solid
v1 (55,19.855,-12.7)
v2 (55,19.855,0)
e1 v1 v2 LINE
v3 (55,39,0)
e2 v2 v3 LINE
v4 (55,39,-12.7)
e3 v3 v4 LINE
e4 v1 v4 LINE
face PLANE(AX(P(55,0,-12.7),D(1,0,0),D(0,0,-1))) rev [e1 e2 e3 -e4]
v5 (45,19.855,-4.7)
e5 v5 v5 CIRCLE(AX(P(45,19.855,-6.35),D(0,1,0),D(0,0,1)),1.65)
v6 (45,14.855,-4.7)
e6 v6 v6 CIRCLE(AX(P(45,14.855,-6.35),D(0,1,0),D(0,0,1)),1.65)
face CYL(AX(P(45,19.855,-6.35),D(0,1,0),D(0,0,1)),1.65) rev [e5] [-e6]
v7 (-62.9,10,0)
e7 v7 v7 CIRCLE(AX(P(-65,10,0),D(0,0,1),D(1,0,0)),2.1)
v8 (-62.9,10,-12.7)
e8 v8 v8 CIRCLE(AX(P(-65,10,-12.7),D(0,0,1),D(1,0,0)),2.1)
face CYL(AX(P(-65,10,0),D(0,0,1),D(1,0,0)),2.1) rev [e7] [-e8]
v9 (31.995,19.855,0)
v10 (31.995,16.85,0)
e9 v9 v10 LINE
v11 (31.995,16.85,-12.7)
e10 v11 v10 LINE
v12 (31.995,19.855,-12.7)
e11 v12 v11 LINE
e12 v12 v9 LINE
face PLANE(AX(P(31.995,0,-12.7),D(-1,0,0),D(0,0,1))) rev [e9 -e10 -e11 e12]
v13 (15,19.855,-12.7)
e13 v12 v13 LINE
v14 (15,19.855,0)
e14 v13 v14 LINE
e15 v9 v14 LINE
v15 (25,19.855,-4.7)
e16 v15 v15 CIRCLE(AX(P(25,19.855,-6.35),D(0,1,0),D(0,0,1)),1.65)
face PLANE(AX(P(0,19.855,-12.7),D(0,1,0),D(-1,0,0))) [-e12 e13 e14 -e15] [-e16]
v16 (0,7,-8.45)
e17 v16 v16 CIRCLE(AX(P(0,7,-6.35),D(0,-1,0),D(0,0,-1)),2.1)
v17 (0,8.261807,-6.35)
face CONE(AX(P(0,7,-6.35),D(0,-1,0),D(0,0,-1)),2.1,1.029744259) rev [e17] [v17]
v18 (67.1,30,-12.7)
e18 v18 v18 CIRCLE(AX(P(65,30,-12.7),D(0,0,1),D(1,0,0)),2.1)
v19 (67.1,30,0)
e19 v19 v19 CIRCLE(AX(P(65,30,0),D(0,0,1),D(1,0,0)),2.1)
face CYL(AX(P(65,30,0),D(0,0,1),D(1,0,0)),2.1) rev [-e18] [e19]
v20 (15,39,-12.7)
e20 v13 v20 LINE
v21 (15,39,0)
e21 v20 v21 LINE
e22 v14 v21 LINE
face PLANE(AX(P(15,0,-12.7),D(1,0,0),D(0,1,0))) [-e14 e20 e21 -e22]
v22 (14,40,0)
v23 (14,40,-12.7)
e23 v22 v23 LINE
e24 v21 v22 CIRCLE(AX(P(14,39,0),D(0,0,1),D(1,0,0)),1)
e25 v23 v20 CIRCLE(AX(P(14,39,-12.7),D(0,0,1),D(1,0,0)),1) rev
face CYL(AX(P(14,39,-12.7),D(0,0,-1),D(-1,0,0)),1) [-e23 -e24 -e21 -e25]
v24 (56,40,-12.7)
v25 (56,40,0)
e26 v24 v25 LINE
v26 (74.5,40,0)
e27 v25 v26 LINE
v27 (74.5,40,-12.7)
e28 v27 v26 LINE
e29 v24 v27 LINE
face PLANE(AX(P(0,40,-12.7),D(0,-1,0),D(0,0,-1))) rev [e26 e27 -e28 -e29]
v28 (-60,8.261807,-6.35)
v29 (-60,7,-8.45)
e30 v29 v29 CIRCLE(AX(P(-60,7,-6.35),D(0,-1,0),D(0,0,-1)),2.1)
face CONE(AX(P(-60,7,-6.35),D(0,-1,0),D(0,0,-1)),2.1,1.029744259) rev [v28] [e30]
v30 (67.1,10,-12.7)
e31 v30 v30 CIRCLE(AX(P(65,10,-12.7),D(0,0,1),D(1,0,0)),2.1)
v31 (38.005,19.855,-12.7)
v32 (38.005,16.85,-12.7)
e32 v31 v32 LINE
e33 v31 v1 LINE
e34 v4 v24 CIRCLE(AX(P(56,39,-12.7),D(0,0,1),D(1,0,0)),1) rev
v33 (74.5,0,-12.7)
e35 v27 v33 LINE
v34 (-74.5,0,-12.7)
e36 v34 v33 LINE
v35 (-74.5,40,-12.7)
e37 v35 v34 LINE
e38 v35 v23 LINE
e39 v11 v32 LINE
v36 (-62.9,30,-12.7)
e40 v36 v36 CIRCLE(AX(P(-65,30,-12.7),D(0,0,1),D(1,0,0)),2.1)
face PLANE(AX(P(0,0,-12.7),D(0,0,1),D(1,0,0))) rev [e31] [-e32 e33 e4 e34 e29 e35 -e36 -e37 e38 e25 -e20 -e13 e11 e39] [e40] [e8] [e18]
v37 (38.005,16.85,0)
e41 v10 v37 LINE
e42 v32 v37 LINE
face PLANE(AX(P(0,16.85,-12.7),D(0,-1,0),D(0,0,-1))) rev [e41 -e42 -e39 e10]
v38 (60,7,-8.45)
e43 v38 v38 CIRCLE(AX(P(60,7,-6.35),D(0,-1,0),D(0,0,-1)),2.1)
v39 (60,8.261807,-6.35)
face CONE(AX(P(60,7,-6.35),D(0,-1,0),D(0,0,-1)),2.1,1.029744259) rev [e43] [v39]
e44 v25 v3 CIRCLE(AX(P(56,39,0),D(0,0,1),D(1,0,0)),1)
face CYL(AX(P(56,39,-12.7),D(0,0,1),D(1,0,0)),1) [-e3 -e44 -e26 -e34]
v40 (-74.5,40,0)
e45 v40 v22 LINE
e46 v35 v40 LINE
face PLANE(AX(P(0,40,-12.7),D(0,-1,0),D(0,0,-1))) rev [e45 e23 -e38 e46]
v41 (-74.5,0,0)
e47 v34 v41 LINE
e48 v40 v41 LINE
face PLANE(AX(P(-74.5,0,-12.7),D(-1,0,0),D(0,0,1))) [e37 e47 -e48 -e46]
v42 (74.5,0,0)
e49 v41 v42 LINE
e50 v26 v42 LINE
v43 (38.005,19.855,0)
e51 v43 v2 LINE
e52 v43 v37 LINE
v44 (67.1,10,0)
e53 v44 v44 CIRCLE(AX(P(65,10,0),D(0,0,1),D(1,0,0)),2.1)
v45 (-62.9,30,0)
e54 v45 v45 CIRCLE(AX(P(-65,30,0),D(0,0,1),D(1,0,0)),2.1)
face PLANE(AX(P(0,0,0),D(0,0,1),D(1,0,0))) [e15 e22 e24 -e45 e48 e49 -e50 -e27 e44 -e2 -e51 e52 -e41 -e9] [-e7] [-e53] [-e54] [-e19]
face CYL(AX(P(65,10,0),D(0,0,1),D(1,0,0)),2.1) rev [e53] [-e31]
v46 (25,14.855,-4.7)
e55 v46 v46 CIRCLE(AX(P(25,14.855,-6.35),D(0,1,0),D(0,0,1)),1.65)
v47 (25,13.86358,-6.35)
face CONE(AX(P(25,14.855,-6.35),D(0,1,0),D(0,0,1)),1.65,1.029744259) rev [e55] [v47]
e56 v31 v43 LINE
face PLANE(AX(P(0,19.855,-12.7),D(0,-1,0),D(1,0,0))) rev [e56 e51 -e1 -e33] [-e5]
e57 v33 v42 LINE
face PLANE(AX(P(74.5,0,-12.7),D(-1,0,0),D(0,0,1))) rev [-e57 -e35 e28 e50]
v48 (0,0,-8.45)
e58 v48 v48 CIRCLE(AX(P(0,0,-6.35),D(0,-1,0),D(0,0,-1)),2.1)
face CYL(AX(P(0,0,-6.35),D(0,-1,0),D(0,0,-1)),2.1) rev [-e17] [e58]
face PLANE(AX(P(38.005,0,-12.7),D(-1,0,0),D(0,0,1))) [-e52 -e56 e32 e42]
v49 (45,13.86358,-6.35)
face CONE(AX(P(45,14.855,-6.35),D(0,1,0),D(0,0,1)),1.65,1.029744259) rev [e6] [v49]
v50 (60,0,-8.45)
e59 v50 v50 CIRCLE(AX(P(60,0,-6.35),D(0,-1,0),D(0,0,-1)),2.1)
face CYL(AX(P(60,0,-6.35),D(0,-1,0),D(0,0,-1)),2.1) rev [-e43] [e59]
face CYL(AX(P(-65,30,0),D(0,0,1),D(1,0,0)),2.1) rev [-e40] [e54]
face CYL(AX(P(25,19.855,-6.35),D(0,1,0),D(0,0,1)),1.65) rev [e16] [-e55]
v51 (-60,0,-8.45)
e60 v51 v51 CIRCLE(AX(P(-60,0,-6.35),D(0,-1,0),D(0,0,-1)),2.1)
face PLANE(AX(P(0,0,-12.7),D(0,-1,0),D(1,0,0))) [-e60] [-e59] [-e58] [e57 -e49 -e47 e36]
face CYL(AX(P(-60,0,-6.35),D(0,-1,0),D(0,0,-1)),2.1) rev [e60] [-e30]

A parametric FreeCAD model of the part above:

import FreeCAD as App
import Part
import Sketcher

V = App.Vector
Q = App.Units.Quantity


def edges_at(feature, points):
    """Names of the edges that pass closest to the given points."""
    edges = feature.Shape.Edges
    near = lambda p: min(range(len(edges)), key=lambda i: edges[i].distToShape(Part.Vertex(*p))[0])
    return sorted({f"Edge{near(p) + 1}" for p in points})


def add_polygon(sketch, points):
    """Adds a closed chain of lines whose ends are joined by coincident constraints."""
    first, n = sketch.GeometryCount, len(points)
    for a, b in zip(points, points[1:] + points[:1]):
        sketch.addGeometry(Part.LineSegment(App.Vector(*a, 0), App.Vector(*b, 0)), False)
    for i in range(n):
        sketch.addConstraint(Sketcher.Constraint("Coincident", first + i, 2, first + (i + 1) % n, 1))

doc = App.newDocument("Part")
body = doc.addObject("PartDesign::Body", "Body")

# Sketch on XY plane
sketch1 = body.newObject("Sketcher::SketchObject", "Sketch")
sketch1.AttachmentSupport = (doc.getObject("XY_Plane"), [""])
sketch1.MapMode = "FlatFace"
add_polygon(sketch1, [(15, 40), (-74.5, 40), (-74.5, 0), (74.5, 0), (74.5, 40), (55, 40), (55, 19.9), (38, 19.9), (38, 16.9), (32, 16.9), (32, 19.9), (15, 19.9)])  # lines 0-11
sketch1.addConstraint(Sketcher.Constraint("Horizontal", 0))
sketch1.addConstraint(Sketcher.Constraint("Vertical", 1))
sketch1.addConstraint(Sketcher.Constraint("Horizontal", 2))
sketch1.addConstraint(Sketcher.Constraint("Vertical", 3))
sketch1.addConstraint(Sketcher.Constraint("Horizontal", 4))
sketch1.addConstraint(Sketcher.Constraint("Vertical", 5))
sketch1.addConstraint(Sketcher.Constraint("Horizontal", 6))
sketch1.addConstraint(Sketcher.Constraint("Vertical", 7))
sketch1.addConstraint(Sketcher.Constraint("Horizontal", 8))
sketch1.addConstraint(Sketcher.Constraint("Vertical", 9))
sketch1.addConstraint(Sketcher.Constraint("Horizontal", 10))
sketch1.addConstraint(Sketcher.Constraint("Vertical", 11))
sketch1.addConstraint(Sketcher.Constraint("Symmetric", 1, 2, 2, 2, -1, 1))
sketch1.addConstraint(Sketcher.Constraint("Horizontal", 0, 2, 3, 2))
sketch1.addConstraint(Sketcher.Constraint("Horizontal", 6, 2, 9, 2))
sketch1.addConstraint(Sketcher.Constraint("Equal", 6, 10))
sketch1.addConstraint(Sketcher.Constraint("DistanceX", 2, 1, 2, 2, Q("149 mm")))
sketch1.addConstraint(Sketcher.Constraint("DistanceY", 1, 2, 1, 1, Q("40 mm")))
sketch1.addConstraint(Sketcher.Constraint("DistanceX", 0, 2, 0, 1, Q("89.5 mm")))
sketch1.addConstraint(Sketcher.Constraint("DistanceX", 4, 2, 4, 1, Q("19.5 mm")))
sketch1.addConstraint(Sketcher.Constraint("DistanceX", 8, 2, 8, 1, Q("6.01 mm")))
sketch1.addConstraint(Sketcher.Constraint("DistanceY", 5, 2, 5, 1, Q("20.145 mm")))
sketch1.addConstraint(Sketcher.Constraint("DistanceY", 7, 2, 7, 1, Q("3.005 mm")))
pad1 = body.newObject("PartDesign::Pad", "Pad")
pad1.Profile = sketch1
pad1.Length = 12.7
pad1.Reversed = True

# Sketch on XZ plane
sketch2 = body.newObject("Sketcher::SketchObject", "Sketch001")
sketch2.AttachmentSupport = (doc.getObject("XZ_Plane"), [""])
sketch2.MapMode = "FlatFace"
sketch2.AttachmentOffset = App.Placement(V(0, 0, -19.855), App.Rotation())
sketch2.addGeometry(Part.Circle(V(25, -6.3, 0), V(0, 0, 1), 1.6), False)
sketch2.addGeometry(Part.Circle(V(45, -6.3, 0), V(0, 0, 1), 1.6), False)
sketch2.addConstraint(Sketcher.Constraint("Equal", 0, 1))
sketch2.addConstraint(Sketcher.Constraint("Horizontal", 0, 3, 1, 3))
sketch2.addConstraint(Sketcher.Constraint("Diameter", 0, Q("3.3 mm")))
sketch2.addConstraint(Sketcher.Constraint("DistanceX", -1, 1, 0, 3, Q("25 mm")))
sketch2.addConstraint(Sketcher.Constraint("DistanceX", -1, 1, 1, 3, Q("45 mm")))
sketch2.addConstraint(Sketcher.Constraint("DistanceY", 0, 3, -1, 1, Q("6.35 mm")))
doc.recompute()
hole = body.newObject("PartDesign::Hole", "Hole")
hole.Profile = sketch2
hole.ThreadType = "None"
hole.Diameter = 3.3
hole.DepthType = "Dimension"
hole.Depth = 5
hole.DrillPoint = "Angled"
hole.DrillPointAngle = 118
hole.Reversed = True

# Sketch on XY plane
sketch3 = body.newObject("Sketcher::SketchObject", "Sketch002")
sketch3.AttachmentSupport = (doc.getObject("XY_Plane"), [""])
sketch3.MapMode = "FlatFace"
sketch3.addGeometry(Part.Circle(V(-65, 30, 0), V(0, 0, 1), 2.1), False)
sketch3.addGeometry(Part.Circle(V(-65, 10, 0), V(0, 0, 1), 2.1), False)
sketch3.addGeometry(Part.Circle(V(65, 10, 0), V(0, 0, 1), 2.1), False)
sketch3.addGeometry(Part.Circle(V(65, 30, 0), V(0, 0, 1), 2.1), False)
sketch3.addConstraint(Sketcher.Constraint("Equal", 0, 1))
sketch3.addConstraint(Sketcher.Constraint("Equal", 1, 2))
sketch3.addConstraint(Sketcher.Constraint("Equal", 2, 3))
sketch3.addConstraint(Sketcher.Constraint("Symmetric", 1, 3, 2, 3, -2))
sketch3.addConstraint(Sketcher.Constraint("Symmetric", 0, 3, 3, 3, -2))
sketch3.addConstraint(Sketcher.Constraint("Vertical", 0, 3, 1, 3))
sketch3.addConstraint(Sketcher.Constraint("Diameter", 0, Q("4.2 mm")))
sketch3.addConstraint(Sketcher.Constraint("DistanceX", 0, 3, -1, 1, Q("65 mm")))
sketch3.addConstraint(Sketcher.Constraint("DistanceY", -1, 1, 0, 3, Q("30 mm")))
sketch3.addConstraint(Sketcher.Constraint("DistanceY", -1, 1, 1, 3, Q("10 mm")))
doc.recompute()
hole2 = body.newObject("PartDesign::Hole", "Hole001")
hole2.Profile = sketch3
hole2.ThreadType = "None"
hole2.Diameter = 4.2
hole2.DepthType = "ThroughAll"

# Sketch on XZ plane
sketch4 = body.newObject("Sketcher::SketchObject", "Sketch003")
sketch4.AttachmentSupport = (doc.getObject("XZ_Plane"), [""])
sketch4.MapMode = "FlatFace"
sketch4.addGeometry(Part.Circle(V(-60, -6.3, 0), V(0, 0, 1), 2.1), False)
sketch4.addGeometry(Part.Circle(V(0, -6.3, 0), V(0, 0, 1), 2.1), False)
sketch4.addGeometry(Part.Circle(V(60, -6.3, 0), V(0, 0, 1), 2.1), False)
sketch4.addConstraint(Sketcher.Constraint("Equal", 0, 1))
sketch4.addConstraint(Sketcher.Constraint("Equal", 1, 2))
sketch4.addConstraint(Sketcher.Constraint("Symmetric", 0, 3, 2, 3, -2))
sketch4.addConstraint(Sketcher.Constraint("PointOnObject", 1, 3, -2))
sketch4.addConstraint(Sketcher.Constraint("Horizontal", 0, 3, 1, 3))
sketch4.addConstraint(Sketcher.Constraint("Diameter", 0, Q("4.2 mm")))
sketch4.addConstraint(Sketcher.Constraint("DistanceX", 0, 3, -1, 1, Q("60 mm")))
sketch4.addConstraint(Sketcher.Constraint("DistanceY", 0, 3, -1, 1, Q("6.35 mm")))
doc.recompute()
hole3 = body.newObject("PartDesign::Hole", "Hole002")
hole3.Profile = sketch4
hole3.ThreadType = "None"
hole3.Diameter = 4.2
hole3.DepthType = "Dimension"
hole3.Depth = 7
hole3.DrillPoint = "Angled"
hole3.DrillPointAngle = 118
doc.recompute()

fillet = body.newObject("PartDesign::Fillet", "Fillet")
fillet.Base = (hole3, edges_at(hole3, [(55, 40, -6.35), (15, 40, -6.35)]))
fillet.Radius = 1

doc.recompute()
